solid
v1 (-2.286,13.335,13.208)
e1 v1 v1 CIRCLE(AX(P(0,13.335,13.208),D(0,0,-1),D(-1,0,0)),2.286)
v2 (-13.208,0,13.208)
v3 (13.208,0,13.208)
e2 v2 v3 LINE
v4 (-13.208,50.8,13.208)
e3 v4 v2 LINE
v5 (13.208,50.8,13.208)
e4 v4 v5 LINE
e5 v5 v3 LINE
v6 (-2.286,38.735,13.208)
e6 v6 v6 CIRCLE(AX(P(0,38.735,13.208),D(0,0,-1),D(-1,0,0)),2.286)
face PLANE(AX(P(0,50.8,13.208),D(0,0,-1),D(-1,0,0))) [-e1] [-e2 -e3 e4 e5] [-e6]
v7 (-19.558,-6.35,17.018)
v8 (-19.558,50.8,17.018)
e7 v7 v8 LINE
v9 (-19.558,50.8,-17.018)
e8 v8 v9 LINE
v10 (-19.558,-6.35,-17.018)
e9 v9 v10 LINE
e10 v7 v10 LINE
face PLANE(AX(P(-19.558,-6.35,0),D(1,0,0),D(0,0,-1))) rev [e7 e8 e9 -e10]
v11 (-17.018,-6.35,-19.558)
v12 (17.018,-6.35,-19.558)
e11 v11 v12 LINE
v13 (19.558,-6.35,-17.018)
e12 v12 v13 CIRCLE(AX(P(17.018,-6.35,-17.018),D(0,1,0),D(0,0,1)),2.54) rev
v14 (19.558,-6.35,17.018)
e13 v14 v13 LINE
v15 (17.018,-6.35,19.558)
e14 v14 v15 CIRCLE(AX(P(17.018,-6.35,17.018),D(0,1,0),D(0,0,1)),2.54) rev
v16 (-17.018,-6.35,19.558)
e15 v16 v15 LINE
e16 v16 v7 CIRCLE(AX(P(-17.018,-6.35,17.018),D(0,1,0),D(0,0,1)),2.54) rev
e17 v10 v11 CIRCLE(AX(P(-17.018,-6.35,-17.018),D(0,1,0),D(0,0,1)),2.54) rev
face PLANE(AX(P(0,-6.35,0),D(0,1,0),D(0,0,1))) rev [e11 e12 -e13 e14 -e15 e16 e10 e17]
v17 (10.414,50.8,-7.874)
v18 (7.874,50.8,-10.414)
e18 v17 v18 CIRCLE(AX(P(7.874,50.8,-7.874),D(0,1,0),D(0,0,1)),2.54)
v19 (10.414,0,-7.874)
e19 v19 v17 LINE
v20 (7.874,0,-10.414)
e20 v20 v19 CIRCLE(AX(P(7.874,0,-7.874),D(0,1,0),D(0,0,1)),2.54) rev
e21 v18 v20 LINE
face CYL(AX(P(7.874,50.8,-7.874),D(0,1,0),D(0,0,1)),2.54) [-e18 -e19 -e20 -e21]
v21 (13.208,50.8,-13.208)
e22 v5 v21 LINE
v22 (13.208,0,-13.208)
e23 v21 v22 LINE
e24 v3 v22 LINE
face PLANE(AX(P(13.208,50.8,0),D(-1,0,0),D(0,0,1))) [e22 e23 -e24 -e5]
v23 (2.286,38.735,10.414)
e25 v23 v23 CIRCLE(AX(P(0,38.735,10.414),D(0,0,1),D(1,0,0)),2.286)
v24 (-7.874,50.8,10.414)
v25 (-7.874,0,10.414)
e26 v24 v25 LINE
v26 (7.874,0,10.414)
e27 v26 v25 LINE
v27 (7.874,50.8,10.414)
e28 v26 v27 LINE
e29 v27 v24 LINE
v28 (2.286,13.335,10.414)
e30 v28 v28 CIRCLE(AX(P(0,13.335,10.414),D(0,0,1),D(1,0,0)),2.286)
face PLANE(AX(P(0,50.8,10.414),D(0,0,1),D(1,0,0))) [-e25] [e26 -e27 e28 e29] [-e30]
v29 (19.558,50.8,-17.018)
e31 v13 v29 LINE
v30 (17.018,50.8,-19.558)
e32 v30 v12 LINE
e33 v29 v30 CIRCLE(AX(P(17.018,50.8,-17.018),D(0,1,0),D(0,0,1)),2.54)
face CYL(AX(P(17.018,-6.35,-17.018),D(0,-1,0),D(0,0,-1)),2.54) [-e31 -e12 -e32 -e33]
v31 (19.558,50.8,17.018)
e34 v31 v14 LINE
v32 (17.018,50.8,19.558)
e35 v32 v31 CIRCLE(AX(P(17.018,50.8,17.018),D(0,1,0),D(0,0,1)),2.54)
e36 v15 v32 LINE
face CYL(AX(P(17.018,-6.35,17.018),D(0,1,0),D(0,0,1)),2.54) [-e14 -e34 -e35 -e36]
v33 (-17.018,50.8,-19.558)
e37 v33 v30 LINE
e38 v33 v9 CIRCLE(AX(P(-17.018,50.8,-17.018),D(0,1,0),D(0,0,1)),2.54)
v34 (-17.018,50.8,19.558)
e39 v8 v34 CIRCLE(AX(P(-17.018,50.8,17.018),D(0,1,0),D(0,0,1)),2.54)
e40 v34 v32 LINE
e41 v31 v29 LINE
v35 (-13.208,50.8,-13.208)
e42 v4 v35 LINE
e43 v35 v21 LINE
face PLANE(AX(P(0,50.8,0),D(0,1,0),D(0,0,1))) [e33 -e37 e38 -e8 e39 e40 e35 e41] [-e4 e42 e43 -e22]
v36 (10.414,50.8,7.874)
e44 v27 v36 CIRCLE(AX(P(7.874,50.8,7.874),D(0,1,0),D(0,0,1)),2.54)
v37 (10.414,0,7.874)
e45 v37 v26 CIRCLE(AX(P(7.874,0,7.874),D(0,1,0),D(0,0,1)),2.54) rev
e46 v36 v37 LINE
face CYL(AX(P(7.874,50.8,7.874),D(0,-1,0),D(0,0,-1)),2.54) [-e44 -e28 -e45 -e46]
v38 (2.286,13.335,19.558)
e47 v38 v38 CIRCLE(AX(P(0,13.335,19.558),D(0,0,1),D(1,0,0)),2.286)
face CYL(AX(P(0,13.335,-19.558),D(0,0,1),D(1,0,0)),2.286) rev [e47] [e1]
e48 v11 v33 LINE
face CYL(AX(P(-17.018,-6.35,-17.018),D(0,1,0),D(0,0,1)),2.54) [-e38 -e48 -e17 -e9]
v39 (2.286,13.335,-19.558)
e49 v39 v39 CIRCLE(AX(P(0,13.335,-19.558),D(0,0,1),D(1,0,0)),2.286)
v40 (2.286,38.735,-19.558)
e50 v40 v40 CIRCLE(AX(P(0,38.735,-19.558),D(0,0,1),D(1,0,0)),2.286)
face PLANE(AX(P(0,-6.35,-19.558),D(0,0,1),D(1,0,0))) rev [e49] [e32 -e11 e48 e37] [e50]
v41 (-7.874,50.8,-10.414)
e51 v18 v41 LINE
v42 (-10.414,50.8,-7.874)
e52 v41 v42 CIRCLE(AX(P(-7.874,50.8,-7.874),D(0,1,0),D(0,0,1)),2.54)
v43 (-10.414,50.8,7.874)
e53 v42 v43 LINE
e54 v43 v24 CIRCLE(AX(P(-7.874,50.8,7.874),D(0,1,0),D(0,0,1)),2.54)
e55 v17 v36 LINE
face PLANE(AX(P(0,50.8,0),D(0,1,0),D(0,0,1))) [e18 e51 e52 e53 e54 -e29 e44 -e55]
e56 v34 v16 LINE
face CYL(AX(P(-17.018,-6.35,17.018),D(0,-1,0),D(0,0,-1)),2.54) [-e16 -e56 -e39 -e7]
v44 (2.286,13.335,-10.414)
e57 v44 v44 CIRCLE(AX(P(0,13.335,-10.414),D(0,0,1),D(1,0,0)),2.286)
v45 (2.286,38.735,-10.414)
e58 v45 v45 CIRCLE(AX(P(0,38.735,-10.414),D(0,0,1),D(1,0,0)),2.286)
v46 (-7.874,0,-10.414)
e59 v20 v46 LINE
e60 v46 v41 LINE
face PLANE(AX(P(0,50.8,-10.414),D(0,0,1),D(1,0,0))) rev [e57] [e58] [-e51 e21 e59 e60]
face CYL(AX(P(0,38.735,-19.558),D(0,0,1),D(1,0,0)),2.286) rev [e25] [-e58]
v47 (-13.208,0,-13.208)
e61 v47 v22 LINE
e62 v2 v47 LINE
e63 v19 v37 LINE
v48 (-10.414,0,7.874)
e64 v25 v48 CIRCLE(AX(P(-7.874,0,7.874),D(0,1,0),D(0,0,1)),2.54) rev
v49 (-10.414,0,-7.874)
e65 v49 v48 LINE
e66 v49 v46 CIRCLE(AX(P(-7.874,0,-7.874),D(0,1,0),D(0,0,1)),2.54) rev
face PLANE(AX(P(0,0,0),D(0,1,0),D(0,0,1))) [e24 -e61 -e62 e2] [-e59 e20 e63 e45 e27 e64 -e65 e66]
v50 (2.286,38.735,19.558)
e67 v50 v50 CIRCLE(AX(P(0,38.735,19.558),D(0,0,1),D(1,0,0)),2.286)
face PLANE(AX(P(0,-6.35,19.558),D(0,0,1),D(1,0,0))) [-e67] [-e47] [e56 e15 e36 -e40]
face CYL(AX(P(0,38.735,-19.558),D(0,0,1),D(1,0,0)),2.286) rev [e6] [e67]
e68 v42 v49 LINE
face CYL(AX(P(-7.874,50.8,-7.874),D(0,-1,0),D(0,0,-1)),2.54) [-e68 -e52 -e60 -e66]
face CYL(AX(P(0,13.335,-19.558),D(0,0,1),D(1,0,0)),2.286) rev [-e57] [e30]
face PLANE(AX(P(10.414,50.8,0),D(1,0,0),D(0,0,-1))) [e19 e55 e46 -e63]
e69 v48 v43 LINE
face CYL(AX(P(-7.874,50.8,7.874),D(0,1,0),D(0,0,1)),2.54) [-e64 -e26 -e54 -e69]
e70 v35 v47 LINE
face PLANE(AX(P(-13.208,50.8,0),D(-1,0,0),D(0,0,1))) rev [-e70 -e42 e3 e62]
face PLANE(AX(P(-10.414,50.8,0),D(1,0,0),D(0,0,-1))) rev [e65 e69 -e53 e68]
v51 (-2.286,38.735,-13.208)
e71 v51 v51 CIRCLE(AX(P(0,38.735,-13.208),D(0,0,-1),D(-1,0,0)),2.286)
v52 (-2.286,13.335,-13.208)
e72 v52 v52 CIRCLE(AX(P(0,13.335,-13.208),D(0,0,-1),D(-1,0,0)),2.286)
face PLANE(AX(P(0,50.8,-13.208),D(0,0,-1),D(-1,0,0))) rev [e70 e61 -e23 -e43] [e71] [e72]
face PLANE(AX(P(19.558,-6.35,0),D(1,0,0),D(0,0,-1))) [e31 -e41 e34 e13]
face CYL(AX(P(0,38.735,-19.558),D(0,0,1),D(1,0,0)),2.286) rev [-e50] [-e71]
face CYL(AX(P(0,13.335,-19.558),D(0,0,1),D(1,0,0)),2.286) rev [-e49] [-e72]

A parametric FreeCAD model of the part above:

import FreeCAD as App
import Part
import Sketcher
from FreeCAD import Vector
Q = App.Units.Quantity


def edges_at(feature, points):
    """Names of the edges that pass closest to the given points."""
    edges = feature.Shape.Edges
    near = lambda p: min(range(len(edges)), key=lambda i: edges[i].distToShape(Part.Vertex(*p))[0])
    return sorted({f"Edge{near(p) + 1}" for p in points})

doc = App.newDocument("Part")
body = doc.addObject("PartDesign::Body", "Body")

sketch1 = body.newObject("Sketcher::SketchObject", "Sketch")
sketch1.AttachmentSupport = (doc.getObject("XZ_Plane"), [""])
sketch1.MapMode = "FlatFace"
sketch1.addGeometry(Part.LineSegment(Vector(-10, -10, 0), Vector(-10, 10, 0)), False)
sketch1.addGeometry(Part.LineSegment(Vector(-10, 10, 0), Vector(10, 10, 0)), False)
sketch1.addGeometry(Part.LineSegment(Vector(10, 10, 0), Vector(10, -10, 0)), False)
sketch1.addGeometry(Part.LineSegment(Vector(10, -10, 0), Vector(-10, -10, 0)), False)
sketch1.addConstraint(Sketcher.Constraint("Coincident", 0, 2, 1, 1))
sketch1.addConstraint(Sketcher.Constraint("Coincident", 1, 2, 2, 1))
sketch1.addConstraint(Sketcher.Constraint("Coincident", 2, 2, 3, 1))
sketch1.addConstraint(Sketcher.Constraint("Coincident", 3, 2, 0, 1))
sketch1.addConstraint(Sketcher.Constraint("Vertical", 0))
sketch1.addConstraint(Sketcher.Constraint("Horizontal", 1))
sketch1.addConstraint(Sketcher.Constraint("Vertical", 2))
sketch1.addConstraint(Sketcher.Constraint("Horizontal", 3))
sketch1.addConstraint(Sketcher.Constraint("Symmetric", 0, 2, 2, 2, -1, 1))
sketch1.addConstraint(Sketcher.Constraint("Equal", 3, 0))
sketch1.addConstraint(Sketcher.Constraint("DistanceX", 1, 1, 1, 2, Q("0.82 in")))
pad1 = body.newObject("PartDesign::Pad", "Pad")
pad1.Profile = sketch1
pad1.Length = Q("2 in")
pad1.Reversed = True
body2 = doc.addObject("PartDesign::Body", "Body001")

sketch2 = body2.newObject("Sketcher::SketchObject", "Sketch001")
sketch2.AttachmentSupport = (doc.getObject("XZ_Plane001"), [""])
sketch2.MapMode = "FlatFace"
sketch2.addGeometry(Part.LineSegment(Vector(-20, -20, 0), Vector(-20, 20, 0)), False)
sketch2.addGeometry(Part.LineSegment(Vector(-20, 20, 0), Vector(20, 20, 0)), False)
sketch2.addGeometry(Part.LineSegment(Vector(20, 20, 0), Vector(20, -20, 0)), False)
sketch2.addGeometry(Part.LineSegment(Vector(20, -20, 0), Vector(-20, -20, 0)), False)
sketch2.addGeometry(Part.LineSegment(Vector(13, 13, 0), Vector(-13, 13, 0)), False)
sketch2.addGeometry(Part.LineSegment(Vector(-13, 13, 0), Vector(-13, -13, 0)), False)
sketch2.addGeometry(Part.LineSegment(Vector(-13, -13, 0), Vector(13, -13, 0)), False)
sketch2.addGeometry(Part.LineSegment(Vector(13, -13, 0), Vector(13, 13, 0)), False)
sketch2.addConstraint(Sketcher.Constraint("Coincident", 0, 2, 1, 1))
sketch2.addConstraint(Sketcher.Constraint("Coincident", 1, 2, 2, 1))
sketch2.addConstraint(Sketcher.Constraint("Coincident", 2, 2, 3, 1))
sketch2.addConstraint(Sketcher.Constraint("Coincident", 3, 2, 0, 1))
sketch2.addConstraint(Sketcher.Constraint("Coincident", 4, 2, 5, 1))
sketch2.addConstraint(Sketcher.Constraint("Coincident", 5, 2, 6, 1))
sketch2.addConstraint(Sketcher.Constraint("Coincident", 6, 2, 7, 1))
sketch2.addConstraint(Sketcher.Constraint("Coincident", 7, 2, 4, 1))
sketch2.addConstraint(Sketcher.Constraint("Vertical", 0))
sketch2.addConstraint(Sketcher.Constraint("Horizontal", 1))
sketch2.addConstraint(Sketcher.Constraint("Vertical", 2))
sketch2.addConstraint(Sketcher.Constraint("Horizontal", 3))
sketch2.addConstraint(Sketcher.Constraint("Horizontal", 4))
sketch2.addConstraint(Sketcher.Constraint("Vertical", 5))
sketch2.addConstraint(Sketcher.Constraint("Horizontal", 6))
sketch2.addConstraint(Sketcher.Constraint("Vertical", 7))
sketch2.addConstraint(Sketcher.Constraint("Symmetric", 0, 2, 2, 2, -1, 1))
sketch2.addConstraint(Sketcher.Constraint("Symmetric", 4, 2, 6, 2, -1, 1))
sketch2.addConstraint(Sketcher.Constraint("Equal", 3, 0))
sketch2.addConstraint(Sketcher.Constraint("Equal", 6, 5))
sketch2.addConstraint(Sketcher.Constraint("DistanceX", 1, 1, 1, 2, Q("1.54 in")))
sketch2.addConstraint(Sketcher.Constraint("DistanceX", 4, 2, 4, 1, Q("1.04 in")))
pad2 = body2.newObject("PartDesign::Pad", "Pad001")
pad2.Profile = sketch2
pad2.Length = Q("2 in")
pad2.Reversed = True
body3 = doc.addObject("PartDesign::Body", "Body002")
body3.AllowCompound = True

sketch3 = body3.newObject("Sketcher::SketchObject", "Sketch002")
sketch3.AttachmentSupport = (doc.getObject("XY_Plane002"), [""])
sketch3.MapMode = "FlatFace"
sketch3.AttachmentOffset = App.Placement(Vector(0, 0, 0.77 * 25.4), App.Rotation())
sketch3.addGeometry(Part.Circle(Vector(0, 13.3, 0), Vector(0, 0, 1), 2.3), False)
sketch3.addGeometry(Part.Circle(Vector(0, 38.7, 0), Vector(0, 0, 1), 2.3), False)
sketch3.addConstraint(Sketcher.Constraint("Equal", 0, 1))
sketch3.addConstraint(Sketcher.Constraint("PointOnObject", 0, 3, -2))
sketch3.addConstraint(Sketcher.Constraint("PointOnObject", 1, 3, -2))
sketch3.addConstraint(Sketcher.Constraint("Diameter", 0, Q("0.18 in")))
sketch3.addConstraint(Sketcher.Constraint("DistanceY", 0, 3, 1, 3, Q("1 in")))
sketch3.addConstraint(Sketcher.Constraint("DistanceY", -1, 1, 0, 3, Q("0.525 in")))
pad3 = body3.newObject("PartDesign::Pad", "Pad002")
pad3.Profile = sketch3
pad3.Length = 40.116
pad3.Reversed = True
doc.recompute()

body4 = doc.addObject("PartDesign::Body", "Body003")
body4.BaseFeature = body3
boolean = body.newObject("PartDesign::Boolean", "Boolean")
boolean.Type = "Cut"
boolean.addObjects([body4])
doc.recompute()

boolean2 = body2.newObject("PartDesign::Boolean", "Boolean001")
boolean2.Type = "Cut"
boolean2.addObjects([body3])
body.AllowCompound = True
doc.recompute()

boolean3 = body.newObject("PartDesign::Boolean", "Boolean002")
boolean3.Type = "Fuse"
boolean3.addObjects([body2])

sketch4 = body.newObject("Sketcher::SketchObject", "Sketch003")
sketch4.AttachmentSupport = (doc.getObject("XZ_Plane"), [""])
sketch4.MapMode = "FlatFace"
sketch4.addGeometry(Part.LineSegment(Vector(-20, -20, 0), Vector(-20, 20, 0)), False)
sketch4.addGeometry(Part.LineSegment(Vector(-20, 20, 0), Vector(20, 20, 0)), False)
sketch4.addGeometry(Part.LineSegment(Vector(20, 20, 0), Vector(20, -20, 0)), False)
sketch4.addGeometry(Part.LineSegment(Vector(20, -20, 0), Vector(-20, -20, 0)), False)
sketch4.addConstraint(Sketcher.Constraint("Coincident", 0, 2, 1, 1))
sketch4.addConstraint(Sketcher.Constraint("Coincident", 1, 2, 2, 1))
sketch4.addConstraint(Sketcher.Constraint("Coincident", 2, 2, 3, 1))
sketch4.addConstraint(Sketcher.Constraint("Coincident", 3, 2, 0, 1))
sketch4.addConstraint(Sketcher.Constraint("Vertical", 0))
sketch4.addConstraint(Sketcher.Constraint("Horizontal", 1))
sketch4.addConstraint(Sketcher.Constraint("Vertical", 2))
sketch4.addConstraint(Sketcher.Constraint("Horizontal", 3))
sketch4.addConstraint(Sketcher.Constraint("Symmetric", 0, 2, 2, 2, -1, 1))
sketch4.addConstraint(Sketcher.Constraint("Equal", 3, 0))
sketch4.addConstraint(Sketcher.Constraint("DistanceX", 1, 1, 1, 2, Q("1.54 in")))
pad4 = body.newObject("PartDesign::Pad", "Pad003")
pad4.Profile = sketch4
pad4.Length = Q("0.25 in")
doc.recompute()

fillet = body.newObject("PartDesign::Fillet", "Fillet")
fillet.Base = (pad4, edges_at(pad4, [
    (-19.558, 22.225, 19.558),
    (-19.558, 22.225, -19.558),
    (19.558, 22.225, -19.558),
    (19.558, 22.225, 19.558),
    (10.414, 25.4, -10.414),
    (10.414, 25.4, 10.414),
    (-10.414, 25.4, 10.414),
    (-10.414, 25.4, -10.414),
]))
fillet.Radius = Q("0.1 in")

doc.recompute()
